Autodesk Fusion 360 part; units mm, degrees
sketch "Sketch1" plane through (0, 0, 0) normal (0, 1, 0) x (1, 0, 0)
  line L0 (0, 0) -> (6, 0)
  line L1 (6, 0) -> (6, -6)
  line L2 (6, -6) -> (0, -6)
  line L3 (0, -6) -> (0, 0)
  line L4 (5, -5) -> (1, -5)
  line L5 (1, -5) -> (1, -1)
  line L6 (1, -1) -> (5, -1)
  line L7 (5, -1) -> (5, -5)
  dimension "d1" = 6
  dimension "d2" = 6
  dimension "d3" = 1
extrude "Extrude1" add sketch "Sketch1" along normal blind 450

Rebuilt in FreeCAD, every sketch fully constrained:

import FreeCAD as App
import Part
import Sketcher

V = App.Vector
Q = App.Units.Quantity

doc = App.newDocument("Part")
params = doc.addObject("Spreadsheet::Sheet", "Params")
for row, (alias, value) in enumerate([
    ("sketch1_width", "6 mm"),
    ("pad1_length", "450 mm"),
], start=1):
    params.set(f"A{row}", alias)
    params.set(f"B{row}", "=" + value)
    params.setAlias(f"B{row}", alias)

body = doc.addObject("PartDesign::Body", "Body")

# Sketch on XZ plane
sketch1 = doc.addObject("Sketcher::SketchObject", "Sketch")
body.addObject(sketch1)
sketch1.AttachmentSupport = (doc.XZ_Plane, [""])
sketch1.MapMode = "FlatFace"
sketch1.addGeometry(Part.LineSegment(V(6, 0, 0), V(0, 0, 0)), False)
sketch1.addGeometry(Part.LineSegment(V(0, 0, 0), V(0, 6, 0)), False)
sketch1.addGeometry(Part.LineSegment(V(0, 6, 0), V(6, 6, 0)), False)
sketch1.addGeometry(Part.LineSegment(V(6, 6, 0), V(6, 0, 0)), False)
sketch1.addGeometry(Part.LineSegment(V(5, 1, 0), V(5, 5, 0)), False)
sketch1.addGeometry(Part.LineSegment(V(5, 5, 0), V(1, 5, 0)), False)
sketch1.addGeometry(Part.LineSegment(V(1, 5, 0), V(1, 1, 0)), False)
sketch1.addGeometry(Part.LineSegment(V(1, 1, 0), V(5, 1, 0)), False)
sketch1.addConstraint(Sketcher.Constraint("Coincident", 0, 2, 1, 1))
sketch1.addConstraint(Sketcher.Constraint("Coincident", 1, 2, 2, 1))
sketch1.addConstraint(Sketcher.Constraint("Coincident", 2, 2, 3, 1))
sketch1.addConstraint(Sketcher.Constraint("Coincident", 3, 2, 0, 1))
sketch1.addConstraint(Sketcher.Constraint("Coincident", 4, 2, 5, 1))
sketch1.addConstraint(Sketcher.Constraint("Coincident", 5, 2, 6, 1))
sketch1.addConstraint(Sketcher.Constraint("Coincident", 6, 2, 7, 1))
sketch1.addConstraint(Sketcher.Constraint("Coincident", 7, 2, 4, 1))
sketch1.addConstraint(Sketcher.Constraint("Horizontal", 0))
sketch1.addConstraint(Sketcher.Constraint("Vertical", 1))
sketch1.addConstraint(Sketcher.Constraint("Horizontal", 2))
sketch1.addConstraint(Sketcher.Constraint("Vertical", 3))
sketch1.addConstraint(Sketcher.Constraint("Vertical", 4))
sketch1.addConstraint(Sketcher.Constraint("Horizontal", 5))
sketch1.addConstraint(Sketcher.Constraint("Vertical", 6))
sketch1.addConstraint(Sketcher.Constraint("Horizontal", 7))
sketch1.addConstraint(Sketcher.Constraint("Coincident", 0, 2, -1, 1))
sketch1.addConstraint(Sketcher.Constraint("Equal", 2, 1))
sketch1.addConstraint(Sketcher.Constraint("Equal", 7, 4))
sketch1.addConstraint(Sketcher.Constraint("DistanceX", 0, 2, 0, 1, Q("6 mm")))
sketch1.addConstraint(Sketcher.Constraint("DistanceX", -1, 1, 5, 2, Q("1 mm")))
sketch1.addConstraint(Sketcher.Constraint("DistanceY", -1, 1, 6, 2, Q("1 mm")))
sketch1.addConstraint(Sketcher.Constraint("DistanceX", 4, 2, 2, 2, Q("1 mm")))
sketch1.setExpression("Constraints[19]", "Params.sketch1_width")
pad1 = doc.addObject("PartDesign::Pad", "Pad")
body.addObject(pad1)
pad1.Profile = sketch1
pad1.setExpression("Length", "Params.pad1_length")
pad1.Reversed = True

doc.recompute()
